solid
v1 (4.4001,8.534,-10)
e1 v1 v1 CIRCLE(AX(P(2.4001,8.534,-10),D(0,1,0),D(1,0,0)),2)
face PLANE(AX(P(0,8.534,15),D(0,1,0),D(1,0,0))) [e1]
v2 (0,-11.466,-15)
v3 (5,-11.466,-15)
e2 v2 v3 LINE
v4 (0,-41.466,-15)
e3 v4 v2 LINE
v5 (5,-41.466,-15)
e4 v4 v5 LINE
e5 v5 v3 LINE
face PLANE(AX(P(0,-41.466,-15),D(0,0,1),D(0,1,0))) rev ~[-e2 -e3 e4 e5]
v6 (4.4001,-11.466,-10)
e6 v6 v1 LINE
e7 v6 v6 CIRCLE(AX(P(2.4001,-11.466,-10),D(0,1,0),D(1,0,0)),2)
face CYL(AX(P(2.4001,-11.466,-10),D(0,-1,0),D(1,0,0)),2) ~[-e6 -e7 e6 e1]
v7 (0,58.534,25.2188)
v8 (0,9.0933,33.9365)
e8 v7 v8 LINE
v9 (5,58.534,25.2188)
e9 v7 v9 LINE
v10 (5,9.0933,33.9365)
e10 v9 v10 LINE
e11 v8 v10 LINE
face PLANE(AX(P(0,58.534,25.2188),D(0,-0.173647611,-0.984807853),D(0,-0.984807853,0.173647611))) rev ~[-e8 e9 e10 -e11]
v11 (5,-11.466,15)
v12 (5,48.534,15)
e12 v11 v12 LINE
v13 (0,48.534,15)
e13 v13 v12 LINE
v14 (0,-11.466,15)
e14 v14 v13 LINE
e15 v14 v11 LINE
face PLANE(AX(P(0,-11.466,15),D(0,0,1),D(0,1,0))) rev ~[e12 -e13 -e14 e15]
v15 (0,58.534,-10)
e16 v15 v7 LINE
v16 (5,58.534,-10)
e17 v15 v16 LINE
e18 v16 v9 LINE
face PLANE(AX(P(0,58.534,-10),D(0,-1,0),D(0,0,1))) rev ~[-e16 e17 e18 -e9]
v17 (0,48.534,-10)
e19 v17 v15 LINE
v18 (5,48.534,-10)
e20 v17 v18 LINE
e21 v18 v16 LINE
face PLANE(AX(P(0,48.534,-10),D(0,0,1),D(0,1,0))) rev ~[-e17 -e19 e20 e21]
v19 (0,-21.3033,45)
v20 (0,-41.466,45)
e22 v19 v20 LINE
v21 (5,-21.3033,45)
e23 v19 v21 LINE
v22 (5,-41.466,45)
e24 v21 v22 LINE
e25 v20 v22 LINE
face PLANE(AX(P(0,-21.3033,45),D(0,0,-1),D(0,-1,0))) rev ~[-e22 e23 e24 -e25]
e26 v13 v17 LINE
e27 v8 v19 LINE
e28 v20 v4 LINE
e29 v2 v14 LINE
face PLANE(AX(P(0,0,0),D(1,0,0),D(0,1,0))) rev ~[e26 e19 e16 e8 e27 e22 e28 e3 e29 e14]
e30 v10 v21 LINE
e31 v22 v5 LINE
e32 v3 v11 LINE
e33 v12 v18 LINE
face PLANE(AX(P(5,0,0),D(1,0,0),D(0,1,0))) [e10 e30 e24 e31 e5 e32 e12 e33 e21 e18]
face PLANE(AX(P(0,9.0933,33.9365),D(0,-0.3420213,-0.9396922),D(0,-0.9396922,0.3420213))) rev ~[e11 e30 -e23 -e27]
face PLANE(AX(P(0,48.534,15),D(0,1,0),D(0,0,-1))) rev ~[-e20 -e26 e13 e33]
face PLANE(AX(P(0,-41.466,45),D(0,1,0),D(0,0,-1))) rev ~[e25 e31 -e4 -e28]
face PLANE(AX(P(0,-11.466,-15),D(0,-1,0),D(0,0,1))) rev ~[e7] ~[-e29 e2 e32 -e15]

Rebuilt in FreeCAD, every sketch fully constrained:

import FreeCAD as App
import Part
import Sketcher

V = App.Vector
Q = App.Units.Quantity

doc = App.newDocument("Part")
body = doc.addObject("PartDesign::Body", "Body")

# Sketch on YZ plane
sketch1 = body.newObject("Sketcher::SketchObject", "Sketch")
sketch1.AttachmentSupport = (doc.getObject("YZ_Plane"), [""])
sketch1.MapMode = "FlatFace"
sketch1.addGeometry(Part.LineSegment(V(9, 34, 0), V(-21, 45, 0)), False)
sketch1.addGeometry(Part.LineSegment(V(-21, 45, 0), V(-41, 45, 0)), False)
sketch1.addGeometry(Part.LineSegment(V(-41, 45, 0), V(-41, -15, 0)), False)
sketch1.addGeometry(Part.LineSegment(V(-41, -15, 0), V(-11, -15, 0)), False)
sketch1.addGeometry(Part.LineSegment(V(-11, -15, 0), V(-11, 15, 0)), False)
sketch1.addGeometry(Part.LineSegment(V(-11, 15, 0), V(49, 15, 0)), False)
sketch1.addGeometry(Part.LineSegment(V(49, 15, 0), V(49, -10, 0)), False)
sketch1.addGeometry(Part.LineSegment(V(49, -10, 0), V(59, -10, 0)), False)
sketch1.addGeometry(Part.LineSegment(V(59, -10, 0), V(59, 25, 0)), False)
sketch1.addGeometry(Part.LineSegment(V(59, 25, 0), V(9, 34, 0)), False)
sketch1.addConstraint(Sketcher.Constraint("Coincident", 0, 2, 1, 1))
sketch1.addConstraint(Sketcher.Constraint("Coincident", 1, 2, 2, 1))
sketch1.addConstraint(Sketcher.Constraint("Coincident", 2, 2, 3, 1))
sketch1.addConstraint(Sketcher.Constraint("Coincident", 3, 2, 4, 1))
sketch1.addConstraint(Sketcher.Constraint("Coincident", 4, 2, 5, 1))
sketch1.addConstraint(Sketcher.Constraint("Coincident", 5, 2, 6, 1))
sketch1.addConstraint(Sketcher.Constraint("Coincident", 6, 2, 7, 1))
sketch1.addConstraint(Sketcher.Constraint("Coincident", 7, 2, 8, 1))
sketch1.addConstraint(Sketcher.Constraint("Coincident", 8, 2, 9, 1))
sketch1.addConstraint(Sketcher.Constraint("Coincident", 9, 2, 0, 1))
sketch1.addConstraint(Sketcher.Constraint("Horizontal", 1))
sketch1.addConstraint(Sketcher.Constraint("Vertical", 2))
sketch1.addConstraint(Sketcher.Constraint("Horizontal", 3))
sketch1.addConstraint(Sketcher.Constraint("Vertical", 4))
sketch1.addConstraint(Sketcher.Constraint("Horizontal", 5))
sketch1.addConstraint(Sketcher.Constraint("Vertical", 6))
sketch1.addConstraint(Sketcher.Constraint("Horizontal", 7))
sketch1.addConstraint(Sketcher.Constraint("Vertical", 8))
sketch1.addConstraint(Sketcher.Constraint("Equal", 5, 2))
sketch1.addConstraint(Sketcher.Constraint("Equal", 3, 4))
sketch1.addConstraint(Sketcher.Constraint("DistanceX", 3, 1, 3, 2, Q("30 mm")))
sketch1.addConstraint(Sketcher.Constraint("DistanceX", 5, 1, 5, 2, Q("60 mm")))
sketch1.addConstraint(Sketcher.Constraint("DistanceX", 7, 1, 7, 2, Q("10 mm")))
sketch1.addConstraint(Sketcher.Constraint("DistanceY", 6, 2, 6, 1, Q("25 mm")))
sketch1.addConstraint(Sketcher.Constraint("Angle", 0, Q("160 deg")))
sketch1.addConstraint(Sketcher.Constraint("DistanceY", 6, 2, -1, 1, Q("10 mm")))
sketch1.addConstraint(Sketcher.Constraint("Angle", 9, Q("170 deg")))
sketch1.addConstraint(Sketcher.Constraint("DistanceX", -1, 1, 7, 2, Q("58.534 mm")))
sketch1.addConstraint(Sketcher.Constraint("DistanceX", 1, 2, 1, 1, Q("20.1627 mm")))
sketch1.addConstraint(Sketcher.Constraint("DistanceY", 8, 1, 8, 2, Q("35.2188 mm")))
pad1 = body.newObject("PartDesign::Pad", "Pad")
pad1.Profile = sketch1
pad1.Length = 5

# Sketch on XZ plane
sketch2 = body.newObject("Sketcher::SketchObject", "Sketch001")
sketch2.AttachmentSupport = (doc.getObject("XZ_Plane"), [""])
sketch2.MapMode = "FlatFace"
sketch2.AttachmentOffset = App.Placement(V(0, 0, 11.466), App.Rotation())
sketch2.addGeometry(Part.Circle(V(2.4, -10, 0), V(0, 0, 1), 2), False)
sketch2.addConstraint(Sketcher.Constraint("Diameter", 0, Q("4 mm")))
sketch2.addConstraint(Sketcher.Constraint("DistanceY", 0, 3, -1, 1, Q("10 mm")))
sketch2.addConstraint(Sketcher.Constraint("DistanceX", -1, 1, 0, 3, Q("2.4 mm")))
pad2 = body.newObject("PartDesign::Pad", "Pad001")
pad2.Profile = sketch2
pad2.Length = 20
pad2.Reversed = True

doc.recompute()
